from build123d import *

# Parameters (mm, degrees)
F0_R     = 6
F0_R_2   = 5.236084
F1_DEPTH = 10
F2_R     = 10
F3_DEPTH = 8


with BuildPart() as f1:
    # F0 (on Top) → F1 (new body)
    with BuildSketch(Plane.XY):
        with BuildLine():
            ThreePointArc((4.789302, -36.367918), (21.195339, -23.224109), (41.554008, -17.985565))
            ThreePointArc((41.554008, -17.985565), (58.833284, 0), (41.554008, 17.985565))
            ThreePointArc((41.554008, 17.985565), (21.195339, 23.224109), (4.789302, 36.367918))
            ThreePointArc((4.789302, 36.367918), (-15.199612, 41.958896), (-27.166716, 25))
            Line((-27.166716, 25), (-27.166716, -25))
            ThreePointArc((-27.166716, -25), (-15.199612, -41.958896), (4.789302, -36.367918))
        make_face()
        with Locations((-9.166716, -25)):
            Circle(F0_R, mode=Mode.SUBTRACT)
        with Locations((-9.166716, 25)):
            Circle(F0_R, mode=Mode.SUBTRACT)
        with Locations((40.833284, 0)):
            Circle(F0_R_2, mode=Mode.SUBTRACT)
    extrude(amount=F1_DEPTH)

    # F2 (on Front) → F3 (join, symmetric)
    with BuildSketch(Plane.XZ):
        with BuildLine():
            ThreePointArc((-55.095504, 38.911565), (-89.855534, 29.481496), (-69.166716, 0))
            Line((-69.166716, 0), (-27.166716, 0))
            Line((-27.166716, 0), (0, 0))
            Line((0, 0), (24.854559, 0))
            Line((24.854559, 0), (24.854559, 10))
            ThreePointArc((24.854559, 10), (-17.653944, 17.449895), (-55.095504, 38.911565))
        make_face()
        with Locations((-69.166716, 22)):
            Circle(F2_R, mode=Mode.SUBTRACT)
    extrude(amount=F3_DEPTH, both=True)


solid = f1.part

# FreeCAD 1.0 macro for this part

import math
import FreeCAD as App
import Part
import Sketcher
from FreeCAD import Vector
Q = App.Units.Quantity

doc = App.newDocument("Part")
body = doc.addObject("PartDesign::Body", "Body")

sketch1 = doc.addObject("Sketcher::SketchObject", "Sketch")
body.addObject(sketch1)
sketch1.AttachmentSupport = (doc.XY_Plane, [""])
sketch1.MapMode = "FlatFace"
sketch1.addGeometry([
    Part.ArcOfCircle(Part.Circle(Vector(44, -68, 0), Vector(0, 0, 1), 50), math.radians(92), math.radians(141)),
    Part.ArcOfCircle(Part.Circle(Vector(41, 0, 0), Vector(0, 0, 1), 18), math.radians(-88), math.radians(88)),
    Part.ArcOfCircle(Part.Circle(Vector(44, 68, 0), Vector(0, 0, 1), 50), math.radians(-141), math.radians(-92)),
    Part.ArcOfCircle(Part.Circle(Vector(-9, 25, 0), Vector(0, 0, 1), 18), math.radians(39), math.radians(180)),
    Part.LineSegment(Vector(-27, 25, 0), Vector(-27, -25, 0)),
    Part.ArcOfCircle(Part.Circle(Vector(-9, -25, 0), Vector(0, 0, 1), 18), math.radians(-180), math.radians(-39)),
    Part.Circle(Vector(-9, -25, 0), Vector(0, 0, 1), 6),
    Part.Circle(Vector(-9, 25, 0), Vector(0, 0, 1), 6),
    Part.Circle(Vector(41, 0, 0), Vector(0, 0, 1), 5),
], False)
sketch1.addConstraint([
    Sketcher.Constraint("Tangent", 0, 1, 1, 1),
    Sketcher.Constraint("Tangent", 1, 2, 2, 2),
    Sketcher.Constraint("Tangent", 2, 1, 3, 1),
    Sketcher.Constraint("Tangent", 3, 2, 4, 1),
    Sketcher.Constraint("Tangent", 4, 2, 5, 1),
    Sketcher.Constraint("Tangent", 5, 2, 0, 2),
    Sketcher.Constraint("Vertical", 4),
    Sketcher.Constraint("Coincident", 6, 3, 5, 3),
    Sketcher.Constraint("Coincident", 7, 3, 3, 3),
    Sketcher.Constraint("Coincident", 8, 3, 1, 3),
    Sketcher.Constraint("Equal", 0, 2),
    Sketcher.Constraint("Equal", 1, 3),
    Sketcher.Constraint("Equal", 3, 5),
    Sketcher.Constraint("Equal", 6, 7),
    Sketcher.Constraint("Symmetric", 0, 3, 2, 3, -1),
    Sketcher.Constraint("Diameter", 6, Q("12 mm")),
    Sketcher.Constraint("Radius", 1, Q("18 mm")),
    Sketcher.Constraint("DistanceY", 4, 2, 4, 1, Q("50 mm")),
    Sketcher.Constraint("DistanceX", 3, 3, 1, 3, Q("50 mm")),
    Sketcher.Constraint("Diameter", 8, Q("10.472168 mm")),
    Sketcher.Constraint("Radius", 0, Q("50.000002 mm")),
    Sketcher.Constraint("DistanceX", -1, 1, 5, 2, Q("4.789302 mm")),
])
pad1 = doc.addObject("PartDesign::Pad", "Pad")
body.addObject(pad1)
pad1.Profile = sketch1
pad1.Length = 10

sketch2 = doc.addObject("Sketcher::SketchObject", "Sketch001")
body.addObject(sketch2)
sketch2.AttachmentSupport = (doc.XZ_Plane, [""])
sketch2.MapMode = "FlatFace"
sketch2.addGeometry([
    Part.ArcOfCircle(Part.Circle(Vector(-69, 22, 0), Vector(0, 0, 1), 22), math.radians(50), math.radians(270)),
    Part.LineSegment(Vector(-69, 0, 0), Vector(25, 0, 0)),
    Part.LineSegment(Vector(25, 0, 0), Vector(25, 10, 0)),
    Part.ArcOfCircle(Part.Circle(Vector(25, 135, 0), Vector(0, 0, 1), 125), math.radians(-130), math.radians(-90)),
    Part.Circle(Vector(-69, 22, 0), Vector(0, 0, 1), 10),
], False)
sketch2.addConstraint([
    Sketcher.Constraint("Tangent", 0, 2, 1, 1),
    Sketcher.Constraint("Coincident", 1, 2, 2, 1),
    Sketcher.Constraint("Coincident", 2, 2, 3, 2),
    Sketcher.Constraint("Tangent", 3, 1, 0, 1),
    Sketcher.Constraint("Horizontal", 1),
    Sketcher.Constraint("Vertical", 2),
    Sketcher.Constraint("Coincident", 4, 3, 0, 3),
    Sketcher.Constraint("PointOnObject", 0, 2, -1),
    Sketcher.Constraint("Vertical", 3, 3, 1, 2),
    Sketcher.Constraint("Diameter", 4, Q("20 mm")),
    Sketcher.Constraint("Radius", 0, Q("22 mm")),
    Sketcher.Constraint("DistanceY", 2, 1, 2, 2, Q("10 mm")),
    Sketcher.Constraint("Radius", 3, Q("124.999996 mm")),
    Sketcher.Constraint("DistanceX", -1, 1, 3, 3, Q("24.854558 mm")),
])
pad2 = doc.addObject("PartDesign::Pad", "Pad001")
body.addObject(pad2)
pad2.Profile = sketch2
pad2.Length = 16
pad2.Midplane = True

doc.recompute()
